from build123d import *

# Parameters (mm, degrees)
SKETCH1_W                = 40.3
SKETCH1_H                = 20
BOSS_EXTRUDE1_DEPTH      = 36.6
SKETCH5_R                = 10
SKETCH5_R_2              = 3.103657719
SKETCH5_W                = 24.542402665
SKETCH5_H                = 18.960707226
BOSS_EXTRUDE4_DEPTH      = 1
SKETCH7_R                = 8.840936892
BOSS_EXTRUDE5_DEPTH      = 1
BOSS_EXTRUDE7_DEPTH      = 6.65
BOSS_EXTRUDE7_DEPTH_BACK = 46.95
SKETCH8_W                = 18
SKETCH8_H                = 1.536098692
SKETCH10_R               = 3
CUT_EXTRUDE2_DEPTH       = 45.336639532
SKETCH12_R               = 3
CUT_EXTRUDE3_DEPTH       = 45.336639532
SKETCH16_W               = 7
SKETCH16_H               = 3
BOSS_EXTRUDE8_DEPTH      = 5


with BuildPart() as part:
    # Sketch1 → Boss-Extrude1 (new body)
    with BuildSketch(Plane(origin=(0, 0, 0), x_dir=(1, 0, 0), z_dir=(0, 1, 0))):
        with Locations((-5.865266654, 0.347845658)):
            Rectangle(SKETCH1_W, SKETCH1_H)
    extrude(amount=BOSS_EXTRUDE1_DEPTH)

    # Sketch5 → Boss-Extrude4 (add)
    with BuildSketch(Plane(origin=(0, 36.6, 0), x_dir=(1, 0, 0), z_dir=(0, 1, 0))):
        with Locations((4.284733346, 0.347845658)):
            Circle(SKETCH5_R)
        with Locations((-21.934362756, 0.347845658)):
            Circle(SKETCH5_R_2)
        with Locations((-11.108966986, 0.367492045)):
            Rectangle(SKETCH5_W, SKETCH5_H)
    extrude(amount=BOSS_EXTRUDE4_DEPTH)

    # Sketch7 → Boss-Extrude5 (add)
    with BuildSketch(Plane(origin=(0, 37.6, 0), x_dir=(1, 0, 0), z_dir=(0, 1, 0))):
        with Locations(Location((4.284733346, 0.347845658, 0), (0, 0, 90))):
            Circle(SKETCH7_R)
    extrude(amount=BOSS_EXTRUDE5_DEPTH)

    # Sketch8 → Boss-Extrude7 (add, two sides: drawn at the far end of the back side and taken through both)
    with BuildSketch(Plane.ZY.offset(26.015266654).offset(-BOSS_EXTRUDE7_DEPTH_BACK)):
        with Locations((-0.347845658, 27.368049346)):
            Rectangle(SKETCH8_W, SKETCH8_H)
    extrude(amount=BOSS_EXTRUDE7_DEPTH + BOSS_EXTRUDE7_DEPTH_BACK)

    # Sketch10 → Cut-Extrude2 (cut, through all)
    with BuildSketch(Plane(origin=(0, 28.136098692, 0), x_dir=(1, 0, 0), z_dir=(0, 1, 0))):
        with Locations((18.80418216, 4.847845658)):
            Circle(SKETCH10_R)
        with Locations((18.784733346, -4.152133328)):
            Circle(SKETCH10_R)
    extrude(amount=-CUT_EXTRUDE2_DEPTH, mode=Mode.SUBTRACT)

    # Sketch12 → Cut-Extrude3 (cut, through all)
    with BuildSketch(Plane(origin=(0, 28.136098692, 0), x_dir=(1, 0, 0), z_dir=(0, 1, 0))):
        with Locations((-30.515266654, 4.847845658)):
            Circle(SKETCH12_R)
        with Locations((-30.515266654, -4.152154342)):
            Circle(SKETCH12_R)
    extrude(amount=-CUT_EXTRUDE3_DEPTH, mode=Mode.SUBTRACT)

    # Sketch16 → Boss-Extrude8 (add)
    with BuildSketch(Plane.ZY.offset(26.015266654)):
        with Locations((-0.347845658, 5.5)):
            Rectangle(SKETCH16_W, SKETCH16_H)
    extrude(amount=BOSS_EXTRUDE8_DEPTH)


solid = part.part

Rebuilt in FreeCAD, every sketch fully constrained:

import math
import FreeCAD as App
import Part
import Sketcher
from FreeCAD import Vector
Q = App.Units.Quantity

doc = App.newDocument("Part")
body = doc.addObject("PartDesign::Body", "Body")

# Sketch on XZ plane
sketch1 = doc.addObject("Sketcher::SketchObject", "Sketch")
body.addObject(sketch1)
sketch1.AttachmentSupport = (doc.XZ_Plane, [""])
sketch1.MapMode = "FlatFace"
sketch1.addGeometry(Part.LineSegment(Vector(-26.015267, -10.347846, 0), Vector(-26.015267, 9.652154, 0)), False)
sketch1.addGeometry(Part.LineSegment(Vector(-26.015267, 9.652154, 0), Vector(14.284733, 9.652154, 0)), False)
sketch1.addGeometry(Part.LineSegment(Vector(14.284733, 9.652154, 0), Vector(14.284733, -10.347846, 0)), False)
sketch1.addGeometry(Part.LineSegment(Vector(14.284733, -10.347846, 0), Vector(-26.015267, -10.347846, 0)), False)
sketch1.addConstraint(Sketcher.Constraint("Coincident", 0, 2, 1, 1))
sketch1.addConstraint(Sketcher.Constraint("Coincident", 1, 2, 2, 1))
sketch1.addConstraint(Sketcher.Constraint("Coincident", 2, 2, 3, 1))
sketch1.addConstraint(Sketcher.Constraint("Coincident", 3, 2, 0, 1))
sketch1.addConstraint(Sketcher.Constraint("Vertical", 0))
sketch1.addConstraint(Sketcher.Constraint("Horizontal", 1))
sketch1.addConstraint(Sketcher.Constraint("Vertical", 2))
sketch1.addConstraint(Sketcher.Constraint("Horizontal", 3))
sketch1.addConstraint(Sketcher.Constraint("DistanceY", 0, 1, 0, 2, Q("20 mm")))
sketch1.addConstraint(Sketcher.Constraint("DistanceX", 1, 1, 1, 2, Q("40.3 mm")))
sketch1.addConstraint(Sketcher.Constraint("DistanceX", 0, 2, -1, 1, Q("26.015267 mm")))
sketch1.addConstraint(Sketcher.Constraint("DistanceY", -1, 1, 0, 2, Q("9.652154 mm")))
pad1 = doc.addObject("PartDesign::Pad", "Pad")
body.addObject(pad1)
pad1.Profile = sketch1
pad1.Length = 36.6
pad1.Reversed = True

# Sketch on XZ plane
sketch2 = doc.addObject("Sketcher::SketchObject", "Sketch001")
body.addObject(sketch2)
sketch2.AttachmentSupport = (doc.XZ_Plane, [""])
sketch2.MapMode = "FlatFace"
sketch2.AttachmentOffset = App.Placement(Vector(0, 0, -36.6), App.Rotation())
sketch2.addGeometry(Part.ArcOfCircle(Part.Circle(Vector(4.284733, -0.347846, 0), Vector(0, 0, 1), 10), math.radians(-108.194872), math.radians(108.902589)), False)
sketch2.addGeometry(Part.LineSegment(Vector(1.162234, -9.847846, 0), Vector(-23.380168, -9.847846, 0)), False)
sketch2.addGeometry(Part.LineSegment(Vector(-23.380168, -9.847846, 0), Vector(-23.380168, -3.094177, 0)), False)
sketch2.addGeometry(Part.ArcOfCircle(Part.Circle(Vector(-21.934363, -0.347846, 0), Vector(0, 0, 1), 3.103658), math.radians(117.76455), math.radians(242.23545)), False)
sketch2.addGeometry(Part.LineSegment(Vector(-23.380168, 2.398486, 0), Vector(-23.380168, 9.112862, 0)), False)
sketch2.addGeometry(Part.LineSegment(Vector(-23.380168, 9.112862, 0), Vector(1.045132, 9.112862, 0)), False)
sketch2.addConstraint(Sketcher.Constraint("Coincident", 0, 1, 1, 1))
sketch2.addConstraint(Sketcher.Constraint("Coincident", 1, 2, 2, 1))
sketch2.addConstraint(Sketcher.Constraint("Coincident", 2, 2, 3, 2))
sketch2.addConstraint(Sketcher.Constraint("Coincident", 3, 1, 4, 1))
sketch2.addConstraint(Sketcher.Constraint("Coincident", 4, 2, 5, 1))
sketch2.addConstraint(Sketcher.Constraint("Coincident", 5, 2, 0, 2))
sketch2.addConstraint(Sketcher.Constraint("Horizontal", 1))
sketch2.addConstraint(Sketcher.Constraint("Vertical", 2))
sketch2.addConstraint(Sketcher.Constraint("Vertical", 4))
sketch2.addConstraint(Sketcher.Constraint("Horizontal", 5))
sketch2.addConstraint(Sketcher.Constraint("Horizontal", 0, 3, 3, 3))
sketch2.addConstraint(Sketcher.Constraint("Vertical", 2, 2, 3, 1))
sketch2.addConstraint(Sketcher.Constraint("Radius", 0, Q("10 mm")))
sketch2.addConstraint(Sketcher.Constraint("DistanceY", 0, 1, 0, 3, Q("9.5 mm")))
sketch2.addConstraint(Sketcher.Constraint("DistanceX", 5, 1, 5, 2, Q("24.4253 mm")))
sketch2.addConstraint(Sketcher.Constraint("Radius", 3, Q("3.103658 mm")))
sketch2.addConstraint(Sketcher.Constraint("DistanceY", 2, 1, 2, 2, Q("6.753668 mm")))
sketch2.addConstraint(Sketcher.Constraint("DistanceX", 1, 2, 0, 3, Q("27.664902 mm")))
sketch2.addConstraint(Sketcher.Constraint("DistanceX", 1, 2, -1, 1, Q("23.380168 mm")))
sketch2.addConstraint(Sketcher.Constraint("DistanceY", -1, 1, 4, 2, Q("9.112862 mm")))
pad2 = doc.addObject("PartDesign::Pad", "Pad001")
body.addObject(pad2)
pad2.Profile = sketch2
pad2.Length = 1
pad2.Reversed = True

# Sketch on XZ plane
sketch3 = doc.addObject("Sketcher::SketchObject", "Sketch002")
body.addObject(sketch3)
sketch3.AttachmentSupport = (doc.XZ_Plane, [""])
sketch3.MapMode = "FlatFace"
sketch3.AttachmentOffset = App.Placement(Vector(0, 0, -37.6), App.Rotation())
sketch3.addGeometry(Part.Circle(Vector(4.284733, -0.347846, 0), Vector(0, 0, 1), 8.840937), False)
sketch3.addConstraint(Sketcher.Constraint("Diameter", 0, Q("17.681874 mm")))
sketch3.addConstraint(Sketcher.Constraint("DistanceX", -1, 1, 0, 3, Q("4.284733 mm")))
sketch3.addConstraint(Sketcher.Constraint("DistanceY", 0, 3, -1, 1, Q("0.347846 mm")))
pad3 = doc.addObject("PartDesign::Pad", "Pad002")
body.addObject(pad3)
pad3.Profile = sketch3
pad3.Length = 1
pad3.Reversed = True

# Sketch on YZ plane
sketch4 = doc.addObject("Sketcher::SketchObject", "Sketch003")
body.addObject(sketch4)
sketch4.AttachmentSupport = (doc.YZ_Plane, [""])
sketch4.MapMode = "FlatFace"
sketch4.AttachmentOffset = App.Placement(Vector(0, 0, -26.015267), App.Rotation())
sketch4.addGeometry(Part.LineSegment(Vector(28.136099, -9.347846, 0), Vector(26.6, -9.347846, 0)), False)
sketch4.addGeometry(Part.LineSegment(Vector(26.6, -9.347846, 0), Vector(26.6, 8.652154, 0)), False)
sketch4.addGeometry(Part.LineSegment(Vector(26.6, 8.652154, 0), Vector(28.136099, 8.652154, 0)), False)
sketch4.addGeometry(Part.LineSegment(Vector(28.136099, 8.652154, 0), Vector(28.136099, -9.347846, 0)), False)
sketch4.addConstraint(Sketcher.Constraint("Coincident", 0, 2, 1, 1))
sketch4.addConstraint(Sketcher.Constraint("Coincident", 1, 2, 2, 1))
sketch4.addConstraint(Sketcher.Constraint("Coincident", 2, 2, 3, 1))
sketch4.addConstraint(Sketcher.Constraint("Coincident", 3, 2, 0, 1))
sketch4.addConstraint(Sketcher.Constraint("Horizontal", 0))
sketch4.addConstraint(Sketcher.Constraint("Vertical", 1))
sketch4.addConstraint(Sketcher.Constraint("Horizontal", 2))
sketch4.addConstraint(Sketcher.Constraint("Vertical", 3))
sketch4.addConstraint(Sketcher.Constraint("DistanceY", 1, 1, 1, 2, Q("18 mm")))
sketch4.addConstraint(Sketcher.Constraint("DistanceX", -1, 1, 0, 2, Q("26.6 mm")))
sketch4.addConstraint(Sketcher.Constraint("DistanceX", 0, 2, 0, 1, Q("1.536099 mm")))
sketch4.addConstraint(Sketcher.Constraint("DistanceY", 0, 2, -1, 1, Q("9.347846 mm")))
pad4 = doc.addObject("PartDesign::Pad", "Pad003")
body.addObject(pad4)
pad4.Profile = sketch4
pad4.Type = "TwoLengths"
pad4.Length = 6.65
pad4.Length2 = 46.95
pad4.Reversed = True

# Sketch on XZ plane
sketch5 = doc.addObject("Sketcher::SketchObject", "Sketch004")
body.addObject(sketch5)
sketch5.AttachmentSupport = (doc.XZ_Plane, [""])
sketch5.MapMode = "FlatFace"
sketch5.AttachmentOffset = App.Placement(Vector(0, 0, -28.136099), App.Rotation())
sketch5.addGeometry(Part.Circle(Vector(18.804182, -4.847846, 0), Vector(0, 0, 1), 3), False)
sketch5.addGeometry(Part.Circle(Vector(18.784733, 4.152133, 0), Vector(0, 0, 1), 3), False)
sketch5.addConstraint(Sketcher.Constraint("Equal", 0, 1))
sketch5.addConstraint(Sketcher.Constraint("Diameter", 0, Q("6 mm")))
sketch5.addConstraint(Sketcher.Constraint("DistanceX", 1, 3, 0, 3, Q("0.019449 mm")))
sketch5.addConstraint(Sketcher.Constraint("DistanceY", 0, 3, 1, 3, Q("8.999979 mm")))
sketch5.addConstraint(Sketcher.Constraint("DistanceX", -1, 1, 0, 3, Q("18.804182 mm")))
sketch5.addConstraint(Sketcher.Constraint("DistanceY", 0, 3, -1, 1, Q("4.847846 mm")))
pocket1 = doc.addObject("PartDesign::Pocket", "Pocket")
body.addObject(pocket1)
pocket1.Profile = sketch5
pocket1.Type = "ThroughAll"
pocket1.Reversed = True

# Sketch on XZ plane
sketch6 = doc.addObject("Sketcher::SketchObject", "Sketch005")
body.addObject(sketch6)
sketch6.AttachmentSupport = (doc.XZ_Plane, [""])
sketch6.MapMode = "FlatFace"
sketch6.AttachmentOffset = App.Placement(Vector(0, 0, -28.136099), App.Rotation())
sketch6.addGeometry(Part.Circle(Vector(-30.515267, -4.847846, 0), Vector(0, 0, 1), 3), False)
sketch6.addGeometry(Part.Circle(Vector(-30.515267, 4.152154, 0), Vector(0, 0, 1), 3), False)
sketch6.addConstraint(Sketcher.Constraint("Equal", 0, 1))
sketch6.addConstraint(Sketcher.Constraint("Vertical", 0, 3, 1, 3))
sketch6.addConstraint(Sketcher.Constraint("Diameter", 0, Q("6 mm")))
sketch6.addConstraint(Sketcher.Constraint("DistanceY", 0, 3, 1, 3, Q("9 mm")))
sketch6.addConstraint(Sketcher.Constraint("DistanceX", 0, 3, -1, 1, Q("30.515267 mm")))
sketch6.addConstraint(Sketcher.Constraint("DistanceY", 0, 3, -1, 1, Q("4.847846 mm")))
pocket2 = doc.addObject("PartDesign::Pocket", "Pocket001")
body.addObject(pocket2)
pocket2.Profile = sketch6
pocket2.Type = "ThroughAll"
pocket2.Reversed = True

# Sketch on YZ plane
sketch7 = doc.addObject("Sketcher::SketchObject", "Sketch006")
body.addObject(sketch7)
sketch7.AttachmentSupport = (doc.YZ_Plane, [""])
sketch7.MapMode = "FlatFace"
sketch7.AttachmentOffset = App.Placement(Vector(0, 0, -26.015267), App.Rotation())
sketch7.addGeometry(Part.LineSegment(Vector(7, -3.847846, 0), Vector(4, -3.847846, 0)), False)
sketch7.addGeometry(Part.LineSegment(Vector(4, -3.847846, 0), Vector(4, 3.152154, 0)), False)
sketch7.addGeometry(Part.LineSegment(Vector(4, 3.152154, 0), Vector(7, 3.152154, 0)), False)
sketch7.addGeometry(Part.LineSegment(Vector(7, 3.152154, 0), Vector(7, -3.847846, 0)), False)
sketch7.addConstraint(Sketcher.Constraint("Coincident", 0, 2, 1, 1))
sketch7.addConstraint(Sketcher.Constraint("Coincident", 1, 2, 2, 1))
sketch7.addConstraint(Sketcher.Constraint("Coincident", 2, 2, 3, 1))
sketch7.addConstraint(Sketcher.Constraint("Coincident", 3, 2, 0, 1))
sketch7.addConstraint(Sketcher.Constraint("Horizontal", 0))
sketch7.addConstraint(Sketcher.Constraint("Vertical", 1))
sketch7.addConstraint(Sketcher.Constraint("Horizontal", 2))
sketch7.addConstraint(Sketcher.Constraint("Vertical", 3))
sketch7.addConstraint(Sketcher.Constraint("DistanceX", 0, 2, 0, 1, Q("3 mm")))
sketch7.addConstraint(Sketcher.Constraint("DistanceY", 1, 1, 1, 2, Q("7 mm")))
sketch7.addConstraint(Sketcher.Constraint("DistanceX", -1, 1, 0, 2, Q("4 mm")))
sketch7.addConstraint(Sketcher.Constraint("DistanceY", 0, 2, -1, 1, Q("3.847846 mm")))
pad5 = doc.addObject("PartDesign::Pad", "Pad004")
body.addObject(pad5)
pad5.Profile = sketch7
pad5.Length = 5
pad5.Reversed = True

doc.recompute()
